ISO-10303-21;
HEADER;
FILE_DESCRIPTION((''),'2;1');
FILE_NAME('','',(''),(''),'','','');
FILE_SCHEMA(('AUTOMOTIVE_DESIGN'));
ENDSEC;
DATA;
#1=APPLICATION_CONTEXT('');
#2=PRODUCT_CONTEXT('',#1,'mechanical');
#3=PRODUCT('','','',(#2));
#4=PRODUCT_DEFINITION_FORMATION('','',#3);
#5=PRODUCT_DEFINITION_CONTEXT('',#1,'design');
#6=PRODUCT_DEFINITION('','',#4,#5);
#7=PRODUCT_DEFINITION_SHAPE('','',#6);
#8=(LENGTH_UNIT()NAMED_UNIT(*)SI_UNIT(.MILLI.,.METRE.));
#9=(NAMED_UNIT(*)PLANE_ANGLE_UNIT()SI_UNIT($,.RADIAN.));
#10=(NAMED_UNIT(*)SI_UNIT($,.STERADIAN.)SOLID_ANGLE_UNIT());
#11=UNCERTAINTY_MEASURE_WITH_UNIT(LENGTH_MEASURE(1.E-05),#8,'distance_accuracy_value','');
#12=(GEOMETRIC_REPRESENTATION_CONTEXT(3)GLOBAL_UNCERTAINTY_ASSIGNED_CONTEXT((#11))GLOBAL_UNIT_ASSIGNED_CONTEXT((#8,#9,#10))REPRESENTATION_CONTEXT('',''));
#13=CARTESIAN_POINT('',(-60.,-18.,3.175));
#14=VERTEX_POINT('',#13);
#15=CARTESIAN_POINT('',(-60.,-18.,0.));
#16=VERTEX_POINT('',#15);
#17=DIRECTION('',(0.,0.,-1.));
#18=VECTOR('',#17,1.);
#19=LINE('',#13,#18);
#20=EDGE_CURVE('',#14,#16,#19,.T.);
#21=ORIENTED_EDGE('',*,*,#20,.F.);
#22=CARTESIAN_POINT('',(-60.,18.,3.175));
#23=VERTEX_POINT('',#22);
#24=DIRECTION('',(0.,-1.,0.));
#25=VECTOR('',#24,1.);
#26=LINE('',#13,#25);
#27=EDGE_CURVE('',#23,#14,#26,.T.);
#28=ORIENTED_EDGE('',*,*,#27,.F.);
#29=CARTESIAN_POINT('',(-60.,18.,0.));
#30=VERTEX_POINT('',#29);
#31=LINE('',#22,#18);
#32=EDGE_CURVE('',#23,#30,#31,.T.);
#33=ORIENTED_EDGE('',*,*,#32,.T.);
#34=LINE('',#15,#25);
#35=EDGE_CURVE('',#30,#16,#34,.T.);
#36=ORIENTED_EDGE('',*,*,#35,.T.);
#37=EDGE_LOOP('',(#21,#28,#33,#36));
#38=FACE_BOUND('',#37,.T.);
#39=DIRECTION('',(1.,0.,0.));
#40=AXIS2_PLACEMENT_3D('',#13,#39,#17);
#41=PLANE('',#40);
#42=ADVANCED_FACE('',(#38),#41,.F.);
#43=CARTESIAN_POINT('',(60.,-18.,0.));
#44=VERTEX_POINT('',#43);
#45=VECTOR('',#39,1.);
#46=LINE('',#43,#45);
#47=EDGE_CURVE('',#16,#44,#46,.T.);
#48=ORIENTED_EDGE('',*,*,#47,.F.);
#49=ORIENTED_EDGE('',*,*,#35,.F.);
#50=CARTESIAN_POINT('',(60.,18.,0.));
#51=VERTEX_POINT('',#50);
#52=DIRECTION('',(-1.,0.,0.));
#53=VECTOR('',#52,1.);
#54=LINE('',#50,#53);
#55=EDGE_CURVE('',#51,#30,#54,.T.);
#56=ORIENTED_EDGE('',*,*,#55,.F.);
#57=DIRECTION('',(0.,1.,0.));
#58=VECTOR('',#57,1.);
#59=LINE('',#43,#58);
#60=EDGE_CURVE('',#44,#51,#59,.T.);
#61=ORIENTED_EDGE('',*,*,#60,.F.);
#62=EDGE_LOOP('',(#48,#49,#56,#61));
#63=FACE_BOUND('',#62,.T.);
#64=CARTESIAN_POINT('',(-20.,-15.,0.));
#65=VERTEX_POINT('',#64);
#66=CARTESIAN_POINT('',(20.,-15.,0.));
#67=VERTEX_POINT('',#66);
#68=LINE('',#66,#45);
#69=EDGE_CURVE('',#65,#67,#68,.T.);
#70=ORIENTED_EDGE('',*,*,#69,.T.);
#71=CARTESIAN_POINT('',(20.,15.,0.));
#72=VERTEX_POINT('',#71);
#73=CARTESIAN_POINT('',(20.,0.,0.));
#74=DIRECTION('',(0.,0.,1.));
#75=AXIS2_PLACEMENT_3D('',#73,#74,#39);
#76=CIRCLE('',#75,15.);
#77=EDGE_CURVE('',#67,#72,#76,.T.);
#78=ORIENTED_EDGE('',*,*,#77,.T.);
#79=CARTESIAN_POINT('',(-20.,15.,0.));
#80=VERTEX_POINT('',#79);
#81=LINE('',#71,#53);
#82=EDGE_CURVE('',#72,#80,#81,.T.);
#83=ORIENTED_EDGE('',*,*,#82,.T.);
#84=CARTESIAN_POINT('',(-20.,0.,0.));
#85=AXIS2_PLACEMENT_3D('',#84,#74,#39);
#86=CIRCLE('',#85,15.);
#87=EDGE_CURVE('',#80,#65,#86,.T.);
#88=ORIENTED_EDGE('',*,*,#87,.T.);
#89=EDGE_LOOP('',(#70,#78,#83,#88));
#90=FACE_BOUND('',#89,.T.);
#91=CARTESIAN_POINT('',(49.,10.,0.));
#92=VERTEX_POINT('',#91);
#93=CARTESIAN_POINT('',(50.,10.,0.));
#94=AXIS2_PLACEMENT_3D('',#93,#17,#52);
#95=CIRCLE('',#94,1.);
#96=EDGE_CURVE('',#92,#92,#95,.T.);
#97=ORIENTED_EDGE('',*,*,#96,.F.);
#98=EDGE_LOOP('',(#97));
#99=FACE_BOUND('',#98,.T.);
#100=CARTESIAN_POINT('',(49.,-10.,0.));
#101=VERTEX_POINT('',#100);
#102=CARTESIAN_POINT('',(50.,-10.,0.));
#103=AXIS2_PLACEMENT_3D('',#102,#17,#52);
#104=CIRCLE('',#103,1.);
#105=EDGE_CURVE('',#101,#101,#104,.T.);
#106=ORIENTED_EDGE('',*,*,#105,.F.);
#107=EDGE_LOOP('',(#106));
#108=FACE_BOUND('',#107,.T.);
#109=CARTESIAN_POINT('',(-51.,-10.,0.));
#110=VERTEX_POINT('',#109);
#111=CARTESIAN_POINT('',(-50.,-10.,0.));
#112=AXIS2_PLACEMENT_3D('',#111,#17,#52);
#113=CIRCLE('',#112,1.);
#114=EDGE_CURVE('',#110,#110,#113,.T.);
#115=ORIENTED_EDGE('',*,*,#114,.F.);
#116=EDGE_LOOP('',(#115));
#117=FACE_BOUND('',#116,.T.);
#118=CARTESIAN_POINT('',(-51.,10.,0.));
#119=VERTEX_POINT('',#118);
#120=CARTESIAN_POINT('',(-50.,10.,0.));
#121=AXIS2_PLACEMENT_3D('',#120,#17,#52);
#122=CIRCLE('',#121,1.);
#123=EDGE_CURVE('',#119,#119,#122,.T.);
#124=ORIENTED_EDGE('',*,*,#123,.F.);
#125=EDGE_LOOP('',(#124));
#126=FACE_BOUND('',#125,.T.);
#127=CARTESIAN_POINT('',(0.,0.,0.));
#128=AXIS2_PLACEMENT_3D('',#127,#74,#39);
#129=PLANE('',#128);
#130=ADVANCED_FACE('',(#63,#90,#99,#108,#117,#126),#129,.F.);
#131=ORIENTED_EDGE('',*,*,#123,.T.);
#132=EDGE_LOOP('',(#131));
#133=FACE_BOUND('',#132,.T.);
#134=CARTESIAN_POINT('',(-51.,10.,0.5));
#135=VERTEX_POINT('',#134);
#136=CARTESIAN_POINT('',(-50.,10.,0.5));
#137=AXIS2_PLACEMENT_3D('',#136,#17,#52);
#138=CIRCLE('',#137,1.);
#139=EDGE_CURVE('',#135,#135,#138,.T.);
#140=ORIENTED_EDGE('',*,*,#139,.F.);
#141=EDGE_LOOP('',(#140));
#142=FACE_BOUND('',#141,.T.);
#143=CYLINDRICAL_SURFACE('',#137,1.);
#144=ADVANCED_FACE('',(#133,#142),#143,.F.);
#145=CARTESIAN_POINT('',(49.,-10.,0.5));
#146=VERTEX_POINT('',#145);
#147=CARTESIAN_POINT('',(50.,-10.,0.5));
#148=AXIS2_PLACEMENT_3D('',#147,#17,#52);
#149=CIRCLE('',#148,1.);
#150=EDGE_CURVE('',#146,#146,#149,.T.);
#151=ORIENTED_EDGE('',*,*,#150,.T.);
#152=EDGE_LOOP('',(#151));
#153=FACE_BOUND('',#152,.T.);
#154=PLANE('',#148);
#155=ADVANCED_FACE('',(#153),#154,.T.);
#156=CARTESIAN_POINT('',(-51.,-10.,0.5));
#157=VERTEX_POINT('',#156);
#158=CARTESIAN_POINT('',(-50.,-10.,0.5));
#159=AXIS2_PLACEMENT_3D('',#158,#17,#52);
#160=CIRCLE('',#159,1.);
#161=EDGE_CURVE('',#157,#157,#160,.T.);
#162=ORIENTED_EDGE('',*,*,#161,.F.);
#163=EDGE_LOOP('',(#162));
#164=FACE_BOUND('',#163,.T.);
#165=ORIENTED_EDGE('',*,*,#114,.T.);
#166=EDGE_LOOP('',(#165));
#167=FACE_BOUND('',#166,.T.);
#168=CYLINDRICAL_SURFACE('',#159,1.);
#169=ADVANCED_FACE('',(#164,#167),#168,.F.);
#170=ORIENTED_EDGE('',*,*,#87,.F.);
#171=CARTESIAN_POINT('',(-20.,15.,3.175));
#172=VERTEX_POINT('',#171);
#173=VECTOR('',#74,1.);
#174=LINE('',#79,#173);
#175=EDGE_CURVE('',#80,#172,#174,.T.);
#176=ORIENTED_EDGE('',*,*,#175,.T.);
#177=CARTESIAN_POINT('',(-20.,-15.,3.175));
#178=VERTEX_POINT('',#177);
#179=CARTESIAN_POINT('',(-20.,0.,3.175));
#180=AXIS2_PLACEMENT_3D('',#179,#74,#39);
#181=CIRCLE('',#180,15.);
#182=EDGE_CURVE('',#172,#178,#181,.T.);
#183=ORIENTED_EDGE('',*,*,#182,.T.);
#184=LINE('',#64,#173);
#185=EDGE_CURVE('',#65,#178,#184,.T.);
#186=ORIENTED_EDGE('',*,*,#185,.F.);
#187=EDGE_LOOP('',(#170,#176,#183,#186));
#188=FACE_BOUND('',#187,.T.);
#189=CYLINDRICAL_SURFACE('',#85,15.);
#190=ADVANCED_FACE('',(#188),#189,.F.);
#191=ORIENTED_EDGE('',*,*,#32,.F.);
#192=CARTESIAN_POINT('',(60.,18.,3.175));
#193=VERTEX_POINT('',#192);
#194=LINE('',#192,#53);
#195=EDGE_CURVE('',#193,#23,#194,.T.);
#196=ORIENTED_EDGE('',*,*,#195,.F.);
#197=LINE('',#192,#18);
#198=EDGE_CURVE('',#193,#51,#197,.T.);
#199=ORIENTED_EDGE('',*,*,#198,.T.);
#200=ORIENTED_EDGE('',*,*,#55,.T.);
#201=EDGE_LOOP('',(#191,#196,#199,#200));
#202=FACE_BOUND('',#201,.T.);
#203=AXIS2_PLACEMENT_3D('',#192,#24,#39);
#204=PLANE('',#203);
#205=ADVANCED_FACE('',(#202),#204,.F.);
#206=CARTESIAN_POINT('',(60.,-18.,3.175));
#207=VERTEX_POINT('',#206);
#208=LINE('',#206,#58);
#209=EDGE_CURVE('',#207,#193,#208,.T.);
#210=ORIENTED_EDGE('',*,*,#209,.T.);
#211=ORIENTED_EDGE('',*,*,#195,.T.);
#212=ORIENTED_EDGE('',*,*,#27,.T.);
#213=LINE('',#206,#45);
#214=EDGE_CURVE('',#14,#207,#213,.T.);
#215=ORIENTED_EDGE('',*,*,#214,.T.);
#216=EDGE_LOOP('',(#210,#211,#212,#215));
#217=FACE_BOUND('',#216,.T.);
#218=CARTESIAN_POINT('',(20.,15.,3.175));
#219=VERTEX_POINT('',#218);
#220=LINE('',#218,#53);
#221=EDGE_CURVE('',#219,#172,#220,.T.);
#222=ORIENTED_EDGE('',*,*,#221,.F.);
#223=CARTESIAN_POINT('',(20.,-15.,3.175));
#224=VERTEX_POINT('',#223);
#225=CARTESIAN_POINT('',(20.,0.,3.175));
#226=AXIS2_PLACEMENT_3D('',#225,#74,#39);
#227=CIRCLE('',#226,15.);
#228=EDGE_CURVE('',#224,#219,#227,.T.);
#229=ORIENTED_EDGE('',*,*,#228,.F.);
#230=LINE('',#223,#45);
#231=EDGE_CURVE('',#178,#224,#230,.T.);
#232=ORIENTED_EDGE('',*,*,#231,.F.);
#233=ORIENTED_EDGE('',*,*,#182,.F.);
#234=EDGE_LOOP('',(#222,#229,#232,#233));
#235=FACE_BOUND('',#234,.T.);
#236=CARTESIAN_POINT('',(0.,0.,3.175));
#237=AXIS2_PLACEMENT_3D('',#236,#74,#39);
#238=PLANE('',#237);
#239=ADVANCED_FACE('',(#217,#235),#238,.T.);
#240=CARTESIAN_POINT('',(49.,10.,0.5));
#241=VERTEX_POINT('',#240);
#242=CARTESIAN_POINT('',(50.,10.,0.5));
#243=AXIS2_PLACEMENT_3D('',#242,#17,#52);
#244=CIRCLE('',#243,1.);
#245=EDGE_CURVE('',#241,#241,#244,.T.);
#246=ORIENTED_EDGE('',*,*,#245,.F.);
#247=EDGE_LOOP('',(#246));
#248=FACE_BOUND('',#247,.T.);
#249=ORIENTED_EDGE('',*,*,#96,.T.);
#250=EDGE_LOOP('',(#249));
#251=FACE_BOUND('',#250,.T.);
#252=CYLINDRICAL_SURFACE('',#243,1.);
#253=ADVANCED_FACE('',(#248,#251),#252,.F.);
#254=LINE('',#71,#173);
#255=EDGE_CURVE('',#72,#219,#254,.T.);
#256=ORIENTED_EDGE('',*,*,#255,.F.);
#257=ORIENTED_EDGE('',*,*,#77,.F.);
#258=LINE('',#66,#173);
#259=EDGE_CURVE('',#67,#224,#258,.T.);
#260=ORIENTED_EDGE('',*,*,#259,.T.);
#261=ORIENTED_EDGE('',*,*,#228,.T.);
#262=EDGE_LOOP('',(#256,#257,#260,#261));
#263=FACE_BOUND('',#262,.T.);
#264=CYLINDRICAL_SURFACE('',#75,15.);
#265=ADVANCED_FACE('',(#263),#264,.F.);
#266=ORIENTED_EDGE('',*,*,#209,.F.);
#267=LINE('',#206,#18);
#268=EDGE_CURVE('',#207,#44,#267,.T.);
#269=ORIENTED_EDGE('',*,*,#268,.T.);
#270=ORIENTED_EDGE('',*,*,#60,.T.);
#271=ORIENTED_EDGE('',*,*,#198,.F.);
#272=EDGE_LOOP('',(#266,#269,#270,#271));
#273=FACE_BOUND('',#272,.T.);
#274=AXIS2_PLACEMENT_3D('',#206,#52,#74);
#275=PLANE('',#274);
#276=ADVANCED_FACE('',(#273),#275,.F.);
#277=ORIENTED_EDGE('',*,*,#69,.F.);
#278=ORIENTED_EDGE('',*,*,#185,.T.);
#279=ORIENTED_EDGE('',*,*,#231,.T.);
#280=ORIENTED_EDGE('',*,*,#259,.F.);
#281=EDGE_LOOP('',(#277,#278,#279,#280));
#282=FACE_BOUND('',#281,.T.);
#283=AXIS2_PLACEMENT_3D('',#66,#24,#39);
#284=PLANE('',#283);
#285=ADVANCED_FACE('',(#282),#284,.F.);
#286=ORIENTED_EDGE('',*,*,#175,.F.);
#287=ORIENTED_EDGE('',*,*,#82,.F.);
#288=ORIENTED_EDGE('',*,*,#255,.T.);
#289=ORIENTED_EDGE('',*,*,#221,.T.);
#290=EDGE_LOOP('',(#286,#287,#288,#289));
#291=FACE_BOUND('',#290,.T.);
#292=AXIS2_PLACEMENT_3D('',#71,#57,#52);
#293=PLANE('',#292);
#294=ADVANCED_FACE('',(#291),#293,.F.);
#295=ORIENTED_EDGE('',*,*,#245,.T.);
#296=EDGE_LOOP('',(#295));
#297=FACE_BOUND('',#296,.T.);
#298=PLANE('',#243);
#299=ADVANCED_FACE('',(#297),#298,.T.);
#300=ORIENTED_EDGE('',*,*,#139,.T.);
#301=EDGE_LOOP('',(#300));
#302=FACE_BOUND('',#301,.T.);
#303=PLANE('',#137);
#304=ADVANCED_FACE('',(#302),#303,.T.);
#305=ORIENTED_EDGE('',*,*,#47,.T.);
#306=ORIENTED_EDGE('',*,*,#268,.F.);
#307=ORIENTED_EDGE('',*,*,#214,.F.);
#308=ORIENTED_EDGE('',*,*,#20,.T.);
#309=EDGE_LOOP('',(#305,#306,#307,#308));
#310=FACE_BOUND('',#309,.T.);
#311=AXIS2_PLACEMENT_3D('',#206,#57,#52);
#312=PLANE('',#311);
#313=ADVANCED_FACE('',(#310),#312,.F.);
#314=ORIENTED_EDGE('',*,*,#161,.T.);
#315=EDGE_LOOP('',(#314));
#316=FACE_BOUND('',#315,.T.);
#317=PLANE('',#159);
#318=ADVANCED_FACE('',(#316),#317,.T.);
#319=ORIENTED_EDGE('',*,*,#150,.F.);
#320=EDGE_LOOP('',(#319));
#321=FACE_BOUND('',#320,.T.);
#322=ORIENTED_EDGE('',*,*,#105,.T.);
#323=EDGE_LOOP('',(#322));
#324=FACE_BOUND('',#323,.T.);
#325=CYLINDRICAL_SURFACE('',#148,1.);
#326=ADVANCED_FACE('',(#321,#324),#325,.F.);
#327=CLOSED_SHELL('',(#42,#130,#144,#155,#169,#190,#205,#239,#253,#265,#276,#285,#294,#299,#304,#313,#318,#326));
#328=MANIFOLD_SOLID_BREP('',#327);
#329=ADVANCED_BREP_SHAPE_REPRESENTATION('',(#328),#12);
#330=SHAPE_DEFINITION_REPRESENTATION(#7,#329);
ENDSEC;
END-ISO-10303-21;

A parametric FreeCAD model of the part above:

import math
import FreeCAD as App
import Part
import Sketcher
from FreeCAD import Vector
Q = App.Units.Quantity

doc = App.newDocument("Part")
body = doc.addObject("PartDesign::Body", "Body")

# Sketch on XY plane
sketch1 = body.newObject("Sketcher::SketchObject", "Sketch")
sketch1.AttachmentSupport = (doc.getObject("XY_Plane"), [""])
sketch1.MapMode = "FlatFace"
sketch1.addGeometry(Part.LineSegment(Vector(-60, 18, 0), Vector(-60, -18, 0)), False)
sketch1.addGeometry(Part.LineSegment(Vector(-60, -18, 0), Vector(60, -18, 0)), False)
sketch1.addGeometry(Part.LineSegment(Vector(60, -18, 0), Vector(60, 18, 0)), False)
sketch1.addGeometry(Part.LineSegment(Vector(60, 18, 0), Vector(-60, 18, 0)), False)
sketch1.addConstraint(Sketcher.Constraint("Coincident", 0, 2, 1, 1))
sketch1.addConstraint(Sketcher.Constraint("Coincident", 1, 2, 2, 1))
sketch1.addConstraint(Sketcher.Constraint("Coincident", 2, 2, 3, 1))
sketch1.addConstraint(Sketcher.Constraint("Coincident", 3, 2, 0, 1))
sketch1.addConstraint(Sketcher.Constraint("Vertical", 0))
sketch1.addConstraint(Sketcher.Constraint("Horizontal", 1))
sketch1.addConstraint(Sketcher.Constraint("Vertical", 2))
sketch1.addConstraint(Sketcher.Constraint("Horizontal", 3))
sketch1.addConstraint(Sketcher.Constraint("Symmetric", 0, 2, 2, 2, -1, 1))
sketch1.addConstraint(Sketcher.Constraint("DistanceX", 1, 1, 1, 2, Q("120 mm")))
sketch1.addConstraint(Sketcher.Constraint("DistanceY", 0, 2, 0, 1, Q("36 mm")))
pad1 = body.newObject("PartDesign::Pad", "Pad")
pad1.Profile = sketch1
pad1.Length = 3.175

# Sketch on XY plane
sketch2 = body.newObject("Sketcher::SketchObject", "Sketch001")
sketch2.AttachmentSupport = (doc.getObject("XY_Plane"), [""])
sketch2.MapMode = "FlatFace"
sketch2.AttachmentOffset = App.Placement(Vector(0, 0, 3.175), App.Rotation())
sketch2.addGeometry(Part.LineSegment(Vector(-20, -15, 0), Vector(20, -15, 0)), False)
sketch2.addGeometry(Part.ArcOfCircle(Part.Circle(Vector(20, 0, 0), Vector(0, 0, 1), 15), math.radians(-90), math.radians(90)), False)
sketch2.addGeometry(Part.LineSegment(Vector(20, 15, 0), Vector(-20, 15, 0)), False)
sketch2.addGeometry(Part.ArcOfCircle(Part.Circle(Vector(-20, 0, 0), Vector(0, 0, 1), 15), math.radians(90), math.radians(270)), False)
sketch2.addConstraint(Sketcher.Constraint("Tangent", 0, 2, 1, 1))
sketch2.addConstraint(Sketcher.Constraint("Tangent", 1, 2, 2, 1))
sketch2.addConstraint(Sketcher.Constraint("Tangent", 2, 2, 3, 1))
sketch2.addConstraint(Sketcher.Constraint("Tangent", 3, 2, 0, 1))
sketch2.addConstraint(Sketcher.Constraint("Horizontal", 0))
sketch2.addConstraint(Sketcher.Constraint("Horizontal", 2))
sketch2.addConstraint(Sketcher.Constraint("Symmetric", 1, 3, 3, 3, -1, 1))
sketch2.addConstraint(Sketcher.Constraint("Radius", 1, Q("15 mm")))
sketch2.addConstraint(Sketcher.Constraint("DistanceX", 0, 1, 0, 2, Q("40 mm")))
pocket1 = body.newObject("PartDesign::Pocket", "Pocket")
pocket1.Profile = sketch2
pocket1.Type = "ThroughAll"

# Sketch on XY plane
sketch3 = body.newObject("Sketcher::SketchObject", "Sketch002")
sketch3.AttachmentSupport = (doc.getObject("XY_Plane"), [""])
sketch3.MapMode = "FlatFace"
sketch3.addGeometry(Part.Circle(Vector(50, 10, 0), Vector(0, 0, 1), 1), False)
sketch3.addGeometry(Part.Circle(Vector(50, -10, 0), Vector(0, 0, 1), 1), False)
sketch3.addGeometry(Part.Circle(Vector(-50, -10, 0), Vector(0, 0, 1), 1), False)
sketch3.addGeometry(Part.Circle(Vector(-50, 10, 0), Vector(0, 0, 1), 1), False)
sketch3.addConstraint(Sketcher.Constraint("Equal", 0, 1))
sketch3.addConstraint(Sketcher.Constraint("Equal", 1, 2))
sketch3.addConstraint(Sketcher.Constraint("Equal", 2, 3))
sketch3.addConstraint(Sketcher.Constraint("Symmetric", 0, 3, 2, 3, -1, 1))
sketch3.addConstraint(Sketcher.Constraint("Symmetric", 1, 3, 3, 3, -1, 1))
sketch3.addConstraint(Sketcher.Constraint("Symmetric", 1, 3, 2, 3, -2))
sketch3.addConstraint(Sketcher.Constraint("Diameter", 0, Q("2 mm")))
sketch3.addConstraint(Sketcher.Constraint("DistanceX", -1, 1, 0, 3, Q("50 mm")))
sketch3.addConstraint(Sketcher.Constraint("DistanceY", -1, 1, 0, 3, Q("10 mm")))
pocket2 = body.newObject("PartDesign::Pocket", "Pocket001")
pocket2.Profile = sketch3
pocket2.Length = 0.5
pocket2.Reversed = True

doc.recompute()
